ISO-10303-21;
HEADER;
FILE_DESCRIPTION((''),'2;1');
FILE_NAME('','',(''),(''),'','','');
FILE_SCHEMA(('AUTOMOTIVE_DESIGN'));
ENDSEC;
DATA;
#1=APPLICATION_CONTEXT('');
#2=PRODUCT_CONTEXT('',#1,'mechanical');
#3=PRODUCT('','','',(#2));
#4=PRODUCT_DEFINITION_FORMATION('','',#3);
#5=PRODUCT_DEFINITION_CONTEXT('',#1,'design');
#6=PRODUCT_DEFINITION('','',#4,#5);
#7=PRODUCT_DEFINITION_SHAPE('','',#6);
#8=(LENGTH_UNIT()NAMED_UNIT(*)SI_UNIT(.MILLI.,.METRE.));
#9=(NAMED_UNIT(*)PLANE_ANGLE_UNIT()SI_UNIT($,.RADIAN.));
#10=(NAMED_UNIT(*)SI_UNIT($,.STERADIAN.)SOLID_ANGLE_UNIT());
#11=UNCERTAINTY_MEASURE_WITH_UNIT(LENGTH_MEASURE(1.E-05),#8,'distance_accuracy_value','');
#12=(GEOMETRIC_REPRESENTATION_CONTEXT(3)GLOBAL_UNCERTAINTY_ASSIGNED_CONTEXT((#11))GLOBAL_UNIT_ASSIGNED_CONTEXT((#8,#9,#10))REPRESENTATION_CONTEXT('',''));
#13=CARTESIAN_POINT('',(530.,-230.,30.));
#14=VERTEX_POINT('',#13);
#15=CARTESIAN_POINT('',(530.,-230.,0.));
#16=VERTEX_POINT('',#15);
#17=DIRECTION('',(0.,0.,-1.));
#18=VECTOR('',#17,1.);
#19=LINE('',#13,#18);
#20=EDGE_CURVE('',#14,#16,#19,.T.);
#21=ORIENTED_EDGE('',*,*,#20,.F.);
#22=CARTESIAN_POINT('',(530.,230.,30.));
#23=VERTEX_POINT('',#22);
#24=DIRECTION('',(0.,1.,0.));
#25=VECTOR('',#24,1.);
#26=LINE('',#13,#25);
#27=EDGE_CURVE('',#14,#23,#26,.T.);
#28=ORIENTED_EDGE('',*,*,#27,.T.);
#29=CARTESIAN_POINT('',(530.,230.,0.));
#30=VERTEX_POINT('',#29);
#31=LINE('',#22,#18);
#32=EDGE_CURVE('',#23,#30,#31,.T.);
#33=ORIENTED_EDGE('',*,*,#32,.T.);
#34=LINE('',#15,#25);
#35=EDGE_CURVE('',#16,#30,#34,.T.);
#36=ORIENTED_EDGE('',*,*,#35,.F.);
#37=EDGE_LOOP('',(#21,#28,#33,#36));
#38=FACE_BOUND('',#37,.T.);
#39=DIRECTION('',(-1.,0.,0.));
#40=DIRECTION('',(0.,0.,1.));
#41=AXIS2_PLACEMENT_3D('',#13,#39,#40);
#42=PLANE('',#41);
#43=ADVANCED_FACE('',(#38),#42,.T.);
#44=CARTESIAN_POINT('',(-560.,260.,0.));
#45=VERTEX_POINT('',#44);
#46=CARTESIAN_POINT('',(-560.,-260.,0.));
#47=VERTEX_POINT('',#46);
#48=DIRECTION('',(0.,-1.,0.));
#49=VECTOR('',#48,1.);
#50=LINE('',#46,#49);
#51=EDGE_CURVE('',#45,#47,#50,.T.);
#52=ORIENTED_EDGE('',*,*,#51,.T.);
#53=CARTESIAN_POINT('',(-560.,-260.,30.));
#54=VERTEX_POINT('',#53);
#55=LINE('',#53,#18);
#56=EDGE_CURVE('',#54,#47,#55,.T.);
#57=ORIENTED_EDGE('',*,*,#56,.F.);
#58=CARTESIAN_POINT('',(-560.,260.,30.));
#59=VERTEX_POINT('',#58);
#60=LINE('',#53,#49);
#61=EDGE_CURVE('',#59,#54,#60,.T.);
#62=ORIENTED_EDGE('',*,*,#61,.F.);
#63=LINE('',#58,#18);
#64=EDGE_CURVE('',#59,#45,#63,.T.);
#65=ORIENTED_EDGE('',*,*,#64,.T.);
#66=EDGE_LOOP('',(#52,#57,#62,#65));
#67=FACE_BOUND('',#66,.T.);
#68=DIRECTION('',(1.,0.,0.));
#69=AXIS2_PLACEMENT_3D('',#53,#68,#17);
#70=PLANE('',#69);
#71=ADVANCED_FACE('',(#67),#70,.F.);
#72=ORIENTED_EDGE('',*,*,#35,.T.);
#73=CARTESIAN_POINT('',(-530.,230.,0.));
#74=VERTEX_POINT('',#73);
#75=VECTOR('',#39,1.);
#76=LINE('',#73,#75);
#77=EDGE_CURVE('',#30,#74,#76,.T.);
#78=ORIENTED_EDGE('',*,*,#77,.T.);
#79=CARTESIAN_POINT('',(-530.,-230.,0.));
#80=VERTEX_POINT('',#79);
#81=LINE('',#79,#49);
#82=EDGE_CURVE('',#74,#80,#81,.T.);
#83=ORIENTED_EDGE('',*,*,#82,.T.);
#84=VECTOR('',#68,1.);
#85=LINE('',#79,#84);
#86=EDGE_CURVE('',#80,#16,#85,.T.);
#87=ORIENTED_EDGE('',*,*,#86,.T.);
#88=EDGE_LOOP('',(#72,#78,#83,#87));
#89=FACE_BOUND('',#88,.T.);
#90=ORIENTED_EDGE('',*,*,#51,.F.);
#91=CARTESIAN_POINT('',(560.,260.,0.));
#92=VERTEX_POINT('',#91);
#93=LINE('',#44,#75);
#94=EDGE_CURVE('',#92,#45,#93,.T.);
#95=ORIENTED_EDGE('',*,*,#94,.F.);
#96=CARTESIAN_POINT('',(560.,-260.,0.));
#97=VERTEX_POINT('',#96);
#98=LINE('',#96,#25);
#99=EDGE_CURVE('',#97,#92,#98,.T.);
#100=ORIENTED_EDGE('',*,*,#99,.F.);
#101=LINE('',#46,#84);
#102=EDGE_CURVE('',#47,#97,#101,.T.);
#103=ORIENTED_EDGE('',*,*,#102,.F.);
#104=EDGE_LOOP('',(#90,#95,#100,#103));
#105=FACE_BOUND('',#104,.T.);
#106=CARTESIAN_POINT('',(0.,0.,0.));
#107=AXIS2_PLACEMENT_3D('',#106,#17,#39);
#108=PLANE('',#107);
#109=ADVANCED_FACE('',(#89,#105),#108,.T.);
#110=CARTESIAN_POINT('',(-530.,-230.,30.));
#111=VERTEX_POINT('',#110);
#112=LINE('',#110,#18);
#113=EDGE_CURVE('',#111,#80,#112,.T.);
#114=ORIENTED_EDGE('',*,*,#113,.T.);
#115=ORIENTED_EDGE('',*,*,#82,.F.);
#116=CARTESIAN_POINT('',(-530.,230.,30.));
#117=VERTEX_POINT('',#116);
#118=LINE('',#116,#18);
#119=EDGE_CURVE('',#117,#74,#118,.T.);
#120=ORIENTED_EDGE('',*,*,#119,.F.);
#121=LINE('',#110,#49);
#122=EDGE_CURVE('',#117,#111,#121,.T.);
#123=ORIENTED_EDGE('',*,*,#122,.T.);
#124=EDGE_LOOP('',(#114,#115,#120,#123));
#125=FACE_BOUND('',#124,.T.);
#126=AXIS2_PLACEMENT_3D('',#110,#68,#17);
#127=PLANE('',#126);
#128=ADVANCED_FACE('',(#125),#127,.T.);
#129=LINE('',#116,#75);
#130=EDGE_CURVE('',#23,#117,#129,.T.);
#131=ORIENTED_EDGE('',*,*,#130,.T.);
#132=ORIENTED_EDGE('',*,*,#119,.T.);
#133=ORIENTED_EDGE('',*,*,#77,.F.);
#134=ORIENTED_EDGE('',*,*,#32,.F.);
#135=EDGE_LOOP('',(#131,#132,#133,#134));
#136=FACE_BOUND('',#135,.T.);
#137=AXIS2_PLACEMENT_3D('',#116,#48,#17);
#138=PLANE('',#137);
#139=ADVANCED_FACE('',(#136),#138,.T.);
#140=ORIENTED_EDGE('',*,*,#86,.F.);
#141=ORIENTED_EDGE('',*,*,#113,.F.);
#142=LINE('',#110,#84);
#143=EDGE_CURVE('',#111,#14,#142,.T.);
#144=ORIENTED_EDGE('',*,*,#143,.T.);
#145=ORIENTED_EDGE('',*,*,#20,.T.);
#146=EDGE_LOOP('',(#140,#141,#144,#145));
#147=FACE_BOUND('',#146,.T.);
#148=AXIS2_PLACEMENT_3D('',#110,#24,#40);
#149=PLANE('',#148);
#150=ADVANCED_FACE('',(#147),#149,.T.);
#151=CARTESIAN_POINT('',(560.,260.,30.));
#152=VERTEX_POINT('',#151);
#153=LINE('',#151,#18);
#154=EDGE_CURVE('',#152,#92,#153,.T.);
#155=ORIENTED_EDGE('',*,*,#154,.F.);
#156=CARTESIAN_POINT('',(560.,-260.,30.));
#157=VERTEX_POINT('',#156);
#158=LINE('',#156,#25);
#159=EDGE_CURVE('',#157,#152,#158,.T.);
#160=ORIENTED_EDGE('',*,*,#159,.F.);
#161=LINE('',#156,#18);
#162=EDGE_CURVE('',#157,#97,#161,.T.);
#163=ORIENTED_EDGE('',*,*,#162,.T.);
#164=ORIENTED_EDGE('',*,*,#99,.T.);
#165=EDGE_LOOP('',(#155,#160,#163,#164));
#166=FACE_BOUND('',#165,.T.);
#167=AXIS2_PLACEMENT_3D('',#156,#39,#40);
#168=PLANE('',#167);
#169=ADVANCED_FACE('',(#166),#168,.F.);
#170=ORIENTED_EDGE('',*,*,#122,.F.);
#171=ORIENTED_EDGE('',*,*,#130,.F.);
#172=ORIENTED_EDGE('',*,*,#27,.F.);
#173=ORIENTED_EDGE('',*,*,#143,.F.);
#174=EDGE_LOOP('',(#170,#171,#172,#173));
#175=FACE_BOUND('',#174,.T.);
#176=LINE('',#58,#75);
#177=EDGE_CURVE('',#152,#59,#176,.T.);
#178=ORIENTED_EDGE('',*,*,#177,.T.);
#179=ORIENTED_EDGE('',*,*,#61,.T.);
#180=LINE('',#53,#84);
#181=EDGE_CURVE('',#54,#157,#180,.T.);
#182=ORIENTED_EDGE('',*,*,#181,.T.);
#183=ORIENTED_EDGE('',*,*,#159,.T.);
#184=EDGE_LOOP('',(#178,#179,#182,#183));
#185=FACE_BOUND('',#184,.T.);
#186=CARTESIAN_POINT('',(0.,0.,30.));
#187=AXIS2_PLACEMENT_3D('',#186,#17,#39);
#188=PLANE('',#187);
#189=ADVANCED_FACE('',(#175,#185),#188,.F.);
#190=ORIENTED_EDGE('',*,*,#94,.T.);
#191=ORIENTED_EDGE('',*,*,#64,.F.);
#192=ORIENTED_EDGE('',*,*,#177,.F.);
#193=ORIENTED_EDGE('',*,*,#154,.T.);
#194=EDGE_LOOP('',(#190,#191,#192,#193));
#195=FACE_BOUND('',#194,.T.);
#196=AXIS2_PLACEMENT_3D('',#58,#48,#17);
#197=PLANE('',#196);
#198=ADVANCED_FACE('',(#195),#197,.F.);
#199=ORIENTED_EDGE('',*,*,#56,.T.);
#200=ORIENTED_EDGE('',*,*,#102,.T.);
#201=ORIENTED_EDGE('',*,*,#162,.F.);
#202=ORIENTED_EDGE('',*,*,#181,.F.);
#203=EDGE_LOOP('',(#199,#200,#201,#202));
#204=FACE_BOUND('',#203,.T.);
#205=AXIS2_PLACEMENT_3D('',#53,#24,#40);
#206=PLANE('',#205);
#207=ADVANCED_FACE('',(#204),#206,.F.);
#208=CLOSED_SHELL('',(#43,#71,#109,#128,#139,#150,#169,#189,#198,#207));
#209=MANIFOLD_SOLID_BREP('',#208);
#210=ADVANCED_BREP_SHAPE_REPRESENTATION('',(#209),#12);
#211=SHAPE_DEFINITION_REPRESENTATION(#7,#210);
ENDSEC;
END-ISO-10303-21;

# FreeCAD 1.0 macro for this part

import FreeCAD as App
import Part
import Sketcher

V = App.Vector

doc = App.newDocument("Part")
params = doc.addObject("Spreadsheet::Sheet", "Params")
for row, (alias, value) in enumerate([
    ("sketch1_width", "1120 mm"),
    ("sketch1_width2", "1060 mm"),
    ("sketch1_height", "520 mm"),
    ("sketch1_height2", "460 mm"),
    ("pad1_length", "30 mm"),
], start=1):
    params.set(f"A{row}", alias)
    params.set(f"B{row}", "=" + value)
    params.setAlias(f"B{row}", alias)

body = doc.addObject("PartDesign::Body", "Body")

# Sketch on XY plane
sketch1 = doc.addObject("Sketcher::SketchObject", "Sketch")
body.addObject(sketch1)
sketch1.AttachmentSupport = (doc.XY_Plane, [""])
sketch1.MapMode = "FlatFace"
sketch1.addGeometry([
    Part.LineSegment(V(-560, 260, 0), V(-560, -260, 0)),  # 0
    Part.LineSegment(V(-560, -260, 0), V(560, -260, 0)),  # 1
    Part.LineSegment(V(560, -260, 0), V(560, 260, 0)),  # 2
    Part.LineSegment(V(560, 260, 0), V(-560, 260, 0)),  # 3
    Part.LineSegment(V(530, -230, 0), V(-530, -230, 0)),  # 4
    Part.LineSegment(V(-530, -230, 0), V(-530, 230, 0)),  # 5
    Part.LineSegment(V(-530, 230, 0), V(530, 230, 0)),  # 6
    Part.LineSegment(V(530, 230, 0), V(530, -230, 0)),  # 7
], False)
sketch1.addConstraint([
    Sketcher.Constraint("Coincident", 0, 2, 1, 1),
    Sketcher.Constraint("Coincident", 1, 2, 2, 1),
    Sketcher.Constraint("Coincident", 2, 2, 3, 1),
    Sketcher.Constraint("Coincident", 3, 2, 0, 1),
    Sketcher.Constraint("Coincident", 4, 2, 5, 1),
    Sketcher.Constraint("Coincident", 5, 2, 6, 1),
    Sketcher.Constraint("Coincident", 6, 2, 7, 1),
    Sketcher.Constraint("Coincident", 7, 2, 4, 1),
    Sketcher.Constraint("Vertical", 0),
    Sketcher.Constraint("Horizontal", 1),
    Sketcher.Constraint("Vertical", 2),
    Sketcher.Constraint("Horizontal", 3),
    Sketcher.Constraint("Horizontal", 4),
    Sketcher.Constraint("Vertical", 5),
    Sketcher.Constraint("Horizontal", 6),
    Sketcher.Constraint("Vertical", 7),
    Sketcher.Constraint("Symmetric", 0, 2, 2, 2, -1, 1),
    Sketcher.Constraint("Symmetric", 4, 2, 6, 2, -1, 1),
    Sketcher.Constraint("DistanceX", 1, 1, 1, 2, 1120.0),
    Sketcher.Constraint("DistanceX", 4, 2, 4, 1, 1060.0),
    Sketcher.Constraint("DistanceY", 0, 2, 0, 1, 520.0),
    Sketcher.Constraint("DistanceY", 5, 1, 5, 2, 460.0),
])
sketch1.setExpression("Constraints[18]", "Params.sketch1_width")
sketch1.setExpression("Constraints[19]", "Params.sketch1_width2")
sketch1.setExpression("Constraints[20]", "Params.sketch1_height")
sketch1.setExpression("Constraints[21]", "Params.sketch1_height2")
pad1 = doc.addObject("PartDesign::Pad", "Pad")
body.addObject(pad1)
pad1.Profile = sketch1
pad1.setExpression("Length", "Params.pad1_length")

doc.recompute()
